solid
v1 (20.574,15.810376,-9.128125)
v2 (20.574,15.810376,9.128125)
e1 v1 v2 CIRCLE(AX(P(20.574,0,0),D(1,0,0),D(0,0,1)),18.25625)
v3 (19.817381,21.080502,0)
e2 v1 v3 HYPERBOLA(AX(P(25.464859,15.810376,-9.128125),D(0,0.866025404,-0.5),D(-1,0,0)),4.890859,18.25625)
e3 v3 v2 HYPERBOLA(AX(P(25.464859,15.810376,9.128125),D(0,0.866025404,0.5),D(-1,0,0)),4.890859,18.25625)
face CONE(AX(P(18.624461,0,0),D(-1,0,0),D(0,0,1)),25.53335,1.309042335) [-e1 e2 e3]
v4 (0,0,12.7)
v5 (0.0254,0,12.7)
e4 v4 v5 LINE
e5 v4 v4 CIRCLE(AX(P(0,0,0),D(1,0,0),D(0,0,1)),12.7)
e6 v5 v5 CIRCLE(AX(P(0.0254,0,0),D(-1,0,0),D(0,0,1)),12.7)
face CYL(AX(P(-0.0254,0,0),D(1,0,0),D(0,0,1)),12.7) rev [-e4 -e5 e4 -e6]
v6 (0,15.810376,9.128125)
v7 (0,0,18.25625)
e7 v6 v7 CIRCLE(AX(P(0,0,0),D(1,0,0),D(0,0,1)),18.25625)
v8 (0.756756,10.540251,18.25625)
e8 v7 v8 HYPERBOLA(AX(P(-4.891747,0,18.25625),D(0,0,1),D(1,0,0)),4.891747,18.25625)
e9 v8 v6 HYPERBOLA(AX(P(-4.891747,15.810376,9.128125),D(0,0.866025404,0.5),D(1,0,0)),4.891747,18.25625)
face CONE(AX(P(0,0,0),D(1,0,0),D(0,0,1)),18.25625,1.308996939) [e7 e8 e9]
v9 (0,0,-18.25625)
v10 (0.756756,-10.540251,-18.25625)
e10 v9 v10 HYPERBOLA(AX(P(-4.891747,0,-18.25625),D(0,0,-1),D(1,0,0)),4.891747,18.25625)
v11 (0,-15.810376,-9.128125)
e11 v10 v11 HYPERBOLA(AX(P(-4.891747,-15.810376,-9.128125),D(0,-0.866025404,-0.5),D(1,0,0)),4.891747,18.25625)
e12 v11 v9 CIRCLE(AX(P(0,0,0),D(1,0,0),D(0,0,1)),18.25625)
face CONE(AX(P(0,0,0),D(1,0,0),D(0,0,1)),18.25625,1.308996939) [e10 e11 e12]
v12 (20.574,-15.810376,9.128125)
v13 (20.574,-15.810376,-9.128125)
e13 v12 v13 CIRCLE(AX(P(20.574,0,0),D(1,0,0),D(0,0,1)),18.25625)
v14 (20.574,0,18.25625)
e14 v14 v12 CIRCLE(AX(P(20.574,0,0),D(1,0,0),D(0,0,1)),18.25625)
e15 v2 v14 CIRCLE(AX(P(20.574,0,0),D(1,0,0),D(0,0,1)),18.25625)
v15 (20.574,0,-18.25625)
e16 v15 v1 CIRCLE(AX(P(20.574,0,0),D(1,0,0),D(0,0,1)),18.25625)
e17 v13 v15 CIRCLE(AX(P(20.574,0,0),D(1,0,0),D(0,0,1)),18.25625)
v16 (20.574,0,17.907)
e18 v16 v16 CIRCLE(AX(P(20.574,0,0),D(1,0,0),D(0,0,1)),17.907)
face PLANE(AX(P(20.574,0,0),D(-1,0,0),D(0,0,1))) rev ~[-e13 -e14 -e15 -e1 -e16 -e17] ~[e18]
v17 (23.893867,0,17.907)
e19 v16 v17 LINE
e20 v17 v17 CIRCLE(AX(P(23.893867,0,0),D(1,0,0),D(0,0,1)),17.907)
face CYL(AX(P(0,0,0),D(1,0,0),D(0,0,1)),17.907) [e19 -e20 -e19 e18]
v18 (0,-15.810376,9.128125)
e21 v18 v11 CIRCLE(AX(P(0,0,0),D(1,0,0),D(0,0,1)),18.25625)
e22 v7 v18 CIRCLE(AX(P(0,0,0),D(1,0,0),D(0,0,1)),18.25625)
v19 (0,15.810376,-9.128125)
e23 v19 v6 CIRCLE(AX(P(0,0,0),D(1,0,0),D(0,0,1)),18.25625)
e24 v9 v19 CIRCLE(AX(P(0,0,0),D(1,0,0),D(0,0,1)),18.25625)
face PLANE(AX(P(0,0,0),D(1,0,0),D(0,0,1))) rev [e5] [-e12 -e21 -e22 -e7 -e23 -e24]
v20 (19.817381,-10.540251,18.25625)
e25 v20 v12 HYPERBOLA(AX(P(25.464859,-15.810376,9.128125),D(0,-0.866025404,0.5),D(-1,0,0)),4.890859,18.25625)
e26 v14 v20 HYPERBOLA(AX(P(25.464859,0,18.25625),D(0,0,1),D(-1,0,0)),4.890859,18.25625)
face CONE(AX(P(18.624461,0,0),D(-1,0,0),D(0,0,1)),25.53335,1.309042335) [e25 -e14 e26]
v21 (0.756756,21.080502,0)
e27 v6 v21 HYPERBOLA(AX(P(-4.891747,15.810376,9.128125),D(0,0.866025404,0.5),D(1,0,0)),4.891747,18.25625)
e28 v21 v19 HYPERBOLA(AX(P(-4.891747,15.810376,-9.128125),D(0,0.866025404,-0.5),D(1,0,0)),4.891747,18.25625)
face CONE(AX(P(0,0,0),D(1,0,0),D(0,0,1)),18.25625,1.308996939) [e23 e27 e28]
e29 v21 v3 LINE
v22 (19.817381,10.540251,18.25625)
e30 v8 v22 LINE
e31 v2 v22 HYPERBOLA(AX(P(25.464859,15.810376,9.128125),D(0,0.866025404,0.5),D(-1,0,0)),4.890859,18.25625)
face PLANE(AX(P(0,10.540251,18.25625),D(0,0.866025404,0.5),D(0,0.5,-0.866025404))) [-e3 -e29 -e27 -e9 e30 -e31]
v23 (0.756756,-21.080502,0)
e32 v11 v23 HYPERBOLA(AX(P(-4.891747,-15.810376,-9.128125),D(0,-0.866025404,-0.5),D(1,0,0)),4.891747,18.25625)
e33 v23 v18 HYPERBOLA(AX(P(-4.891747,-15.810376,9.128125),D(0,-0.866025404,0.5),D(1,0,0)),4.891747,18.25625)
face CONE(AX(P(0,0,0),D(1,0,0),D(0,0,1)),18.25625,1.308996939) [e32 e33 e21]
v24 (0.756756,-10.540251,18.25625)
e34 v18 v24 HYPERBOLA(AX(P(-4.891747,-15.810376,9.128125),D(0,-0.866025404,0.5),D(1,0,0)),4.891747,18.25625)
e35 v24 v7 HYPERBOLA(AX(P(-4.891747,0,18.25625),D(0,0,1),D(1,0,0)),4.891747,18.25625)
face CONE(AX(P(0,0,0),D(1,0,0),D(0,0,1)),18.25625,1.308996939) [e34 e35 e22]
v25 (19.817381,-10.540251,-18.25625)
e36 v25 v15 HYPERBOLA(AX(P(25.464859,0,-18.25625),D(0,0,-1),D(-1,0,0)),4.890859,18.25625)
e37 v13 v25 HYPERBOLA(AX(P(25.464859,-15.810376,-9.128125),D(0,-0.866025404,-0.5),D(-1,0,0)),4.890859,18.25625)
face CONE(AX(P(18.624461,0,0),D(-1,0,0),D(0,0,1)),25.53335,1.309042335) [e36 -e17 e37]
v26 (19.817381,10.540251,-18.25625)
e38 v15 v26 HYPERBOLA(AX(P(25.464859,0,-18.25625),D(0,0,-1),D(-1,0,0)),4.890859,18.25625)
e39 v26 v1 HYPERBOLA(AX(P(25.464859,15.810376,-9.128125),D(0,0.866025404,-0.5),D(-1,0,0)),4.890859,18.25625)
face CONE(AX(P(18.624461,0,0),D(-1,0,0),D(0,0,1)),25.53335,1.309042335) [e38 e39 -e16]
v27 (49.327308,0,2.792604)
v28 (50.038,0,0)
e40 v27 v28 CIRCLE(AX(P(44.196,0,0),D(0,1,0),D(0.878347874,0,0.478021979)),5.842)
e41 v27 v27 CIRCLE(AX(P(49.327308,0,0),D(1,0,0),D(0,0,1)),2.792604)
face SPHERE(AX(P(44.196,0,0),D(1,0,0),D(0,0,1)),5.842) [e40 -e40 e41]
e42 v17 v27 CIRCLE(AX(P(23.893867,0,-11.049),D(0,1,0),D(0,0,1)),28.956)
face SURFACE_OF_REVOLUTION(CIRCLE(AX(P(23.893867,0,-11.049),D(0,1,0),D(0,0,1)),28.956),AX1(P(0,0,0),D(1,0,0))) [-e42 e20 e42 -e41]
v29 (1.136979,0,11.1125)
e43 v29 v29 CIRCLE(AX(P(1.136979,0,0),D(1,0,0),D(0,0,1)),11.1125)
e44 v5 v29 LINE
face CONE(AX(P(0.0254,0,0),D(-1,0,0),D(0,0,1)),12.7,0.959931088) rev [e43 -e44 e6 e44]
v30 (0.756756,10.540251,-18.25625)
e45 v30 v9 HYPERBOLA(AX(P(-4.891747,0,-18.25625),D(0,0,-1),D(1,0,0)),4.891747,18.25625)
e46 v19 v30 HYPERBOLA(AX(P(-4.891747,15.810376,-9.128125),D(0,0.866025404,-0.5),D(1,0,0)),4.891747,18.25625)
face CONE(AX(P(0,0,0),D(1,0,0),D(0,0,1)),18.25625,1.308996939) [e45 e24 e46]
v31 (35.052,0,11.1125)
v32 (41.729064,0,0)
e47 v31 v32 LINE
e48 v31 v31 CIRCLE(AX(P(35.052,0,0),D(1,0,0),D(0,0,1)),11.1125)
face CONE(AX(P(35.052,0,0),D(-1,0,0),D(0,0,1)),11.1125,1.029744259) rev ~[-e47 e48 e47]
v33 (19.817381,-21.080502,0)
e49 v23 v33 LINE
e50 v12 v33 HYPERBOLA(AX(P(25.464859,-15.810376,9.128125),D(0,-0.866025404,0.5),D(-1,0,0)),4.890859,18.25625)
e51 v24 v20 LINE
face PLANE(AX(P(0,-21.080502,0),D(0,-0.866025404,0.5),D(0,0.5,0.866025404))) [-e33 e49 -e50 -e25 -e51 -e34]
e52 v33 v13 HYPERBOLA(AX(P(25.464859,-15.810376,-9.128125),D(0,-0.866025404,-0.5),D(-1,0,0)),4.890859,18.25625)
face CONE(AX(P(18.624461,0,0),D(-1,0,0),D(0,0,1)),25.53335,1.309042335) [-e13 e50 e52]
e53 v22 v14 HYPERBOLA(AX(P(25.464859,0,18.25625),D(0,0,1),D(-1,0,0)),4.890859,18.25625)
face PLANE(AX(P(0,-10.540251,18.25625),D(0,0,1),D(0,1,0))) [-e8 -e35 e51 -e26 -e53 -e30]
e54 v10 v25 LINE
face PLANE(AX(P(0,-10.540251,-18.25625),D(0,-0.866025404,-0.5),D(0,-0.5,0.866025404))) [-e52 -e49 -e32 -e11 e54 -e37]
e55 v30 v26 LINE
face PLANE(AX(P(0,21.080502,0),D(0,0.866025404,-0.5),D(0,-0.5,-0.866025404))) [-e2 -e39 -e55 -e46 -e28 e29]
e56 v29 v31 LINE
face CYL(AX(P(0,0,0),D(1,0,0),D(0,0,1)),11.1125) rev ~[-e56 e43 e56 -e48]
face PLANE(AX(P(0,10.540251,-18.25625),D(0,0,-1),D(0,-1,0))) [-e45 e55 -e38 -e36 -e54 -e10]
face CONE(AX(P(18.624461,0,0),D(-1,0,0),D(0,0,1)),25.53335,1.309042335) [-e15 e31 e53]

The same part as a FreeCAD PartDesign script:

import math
import FreeCAD as App
import Part
import Sketcher

V = App.Vector
Q = App.Units.Quantity

doc = App.newDocument("Part")
body = doc.addObject("PartDesign::Body", "Body")

# Sketch on YZ plane
sketch1 = doc.addObject("Sketcher::SketchObject", "Sketch")
body.addObject(sketch1)
sketch1.AttachmentSupport = (doc.YZ_Plane, [""])
sketch1.MapMode = "FlatFace"
sketch1.addGeometry([
    Part.LineSegment(V(-10.540251, -18.25625, 0), V(10.540251, -18.25625, 0)),  # 0
    Part.LineSegment(V(10.540251, -18.25625, 0), V(21.080502, 0, 0)),  # 1
    Part.LineSegment(V(21.080502, 0, 0), V(10.540251, 18.25625, 0)),  # 2
    Part.LineSegment(V(10.540251, 18.25625, 0), V(-10.540251, 18.25625, 0)),  # 3
    Part.LineSegment(V(-10.540251, 18.25625, 0), V(-21.080502, 0, 0)),  # 4
    Part.LineSegment(V(-21.080502, 0, 0), V(-10.540251, -18.25625, 0)),  # 5
], False)
sketch1.addConstraint([
    Sketcher.Constraint("Coincident", 0, 2, 1, 1),
    Sketcher.Constraint("Coincident", 1, 2, 2, 1),
    Sketcher.Constraint("Coincident", 2, 2, 3, 1),
    Sketcher.Constraint("Coincident", 3, 2, 4, 1),
    Sketcher.Constraint("Coincident", 4, 2, 5, 1),
    Sketcher.Constraint("Coincident", 5, 2, 0, 1),
    Sketcher.Constraint("Horizontal", 0),
    Sketcher.Constraint("Horizontal", 3),
    Sketcher.Constraint("Symmetric", 0, 2, 3, 2, -1, 1),
    Sketcher.Constraint("Symmetric", 1, 2, 4, 2, -1, 1),
    Sketcher.Constraint("PointOnObject", 1, 2, -1),
    Sketcher.Constraint("Parallel", 2, 5),
    Sketcher.Constraint("Vertical", 0, 2, 2, 2),
    Sketcher.Constraint("Angle", 1, Q("60 deg")),
    Sketcher.Constraint("DistanceY", 0, 2, -1, 1, Q("0.71875 in")),
    Sketcher.Constraint("DistanceX", 0, 1, 0, 2, 21.080502),
])
pad1 = doc.addObject("PartDesign::Pad", "Pad")
body.addObject(pad1)
pad1.Profile = sketch1
pad1.Length = Q("0.81 in")

# Sketch on XY plane
sketch2 = doc.addObject("Sketcher::SketchObject", "Sketch001")
body.addObject(sketch2)
sketch2.AttachmentSupport = (doc.XY_Plane, [""])
sketch2.MapMode = "FlatFace"
sketch2.addGeometry([
    Part.LineSegment(V(0, 0, 0), V(50.038, 0, 0)),  # 0
    Part.ArcOfCircle(Part.Circle(V(44.196, 0, 0), V(0, 0, 1), 5.842), math.radians(0), math.radians(28.556294)),  # 1
    Part.ArcOfCircle(Part.Circle(V(23.893867, -11.049, 0), V(0, 0, 1), 28.956), math.radians(28.556294), math.radians(90)),  # 2
    Part.LineSegment(V(23.893867, 17.907, 0), V(0, 17.907, 0)),  # 3
    Part.LineSegment(V(0, 17.907, 0), V(0, 0, 0)),  # 4
], False)
sketch2.addConstraint([
    Sketcher.Constraint("Coincident", 0, 2, 1, 1),
    Sketcher.Constraint("Tangent", 1, 2, 2, 1),
    Sketcher.Constraint("Tangent", 2, 2, 3, 1),
    Sketcher.Constraint("Coincident", 3, 2, 4, 1),
    Sketcher.Constraint("Coincident", 4, 2, 0, 1),
    Sketcher.Constraint("Horizontal", 0),
    Sketcher.Constraint("Horizontal", 3),
    Sketcher.Constraint("Vertical", 4),
    Sketcher.Constraint("Coincident", 4, 2, -1, 1),
    Sketcher.Constraint("PointOnObject", 1, 3, -1),
    Sketcher.Constraint("Radius", 1, Q("0.23 in")),
    Sketcher.Constraint("Radius", 2, Q("1.14 in")),
    Sketcher.Constraint("DistanceX", 0, 1, 0, 2, Q("1.97 in")),
    Sketcher.Constraint("DistanceY", 4, 2, 4, 1, Q("0.705 in")),
])
revolution = doc.addObject("PartDesign::Revolution", "Revolution")
body.addObject(revolution)
revolution.Profile = sketch2
revolution.ReferenceAxis = (sketch2, ["H_Axis"])
revolution.Angle = 360

# Sketch on XY plane
sketch3 = doc.addObject("Sketcher::SketchObject", "Sketch002")
body.addObject(sketch3)
sketch3.AttachmentSupport = (doc.XY_Plane, [""])
sketch3.MapMode = "FlatFace"
sketch3.addGeometry([
    Part.LineSegment(V(0, 18.25625, 0), V(1.949893, 25.53335, 0)),  # 0
    Part.LineSegment(V(1.949893, 25.53335, 0), V(18.624461, 25.53335, 0)),  # 1
    Part.LineSegment(V(18.624461, 25.53335, 0), V(20.574, 18.25625, 0)),  # 2
    Part.LineSegment(V(20.574, 18.25625, 0), V(33.274, 18.25625, 0)),  # 3
    Part.LineSegment(V(33.274, 18.25625, 0), V(33.274, 43.65625, 0)),  # 4
    Part.LineSegment(V(33.274, 43.65625, 0), V(-12.7, 43.65625, 0)),  # 5
    Part.LineSegment(V(-12.7, 43.65625, 0), V(-12.7, 18.25625, 0)),  # 6
    Part.LineSegment(V(-12.7, 18.25625, 0), V(0, 18.25625, 0)),  # 7
], False)
sketch3.addConstraint([
    Sketcher.Constraint("Coincident", 0, 2, 1, 1),
    Sketcher.Constraint("Coincident", 1, 2, 2, 1),
    Sketcher.Constraint("Coincident", 2, 2, 3, 1),
    Sketcher.Constraint("Coincident", 3, 2, 4, 1),
    Sketcher.Constraint("Coincident", 4, 2, 5, 1),
    Sketcher.Constraint("Coincident", 5, 2, 6, 1),
    Sketcher.Constraint("Coincident", 6, 2, 7, 1),
    Sketcher.Constraint("Coincident", 7, 2, 0, 1),
    Sketcher.Constraint("Horizontal", 1),
    Sketcher.Constraint("Horizontal", 3),
    Sketcher.Constraint("Vertical", 4),
    Sketcher.Constraint("Horizontal", 5),
    Sketcher.Constraint("Vertical", 6),
    Sketcher.Constraint("Horizontal", 7),
    Sketcher.Constraint("PointOnObject", 7, 2, -2),
    Sketcher.Constraint("Horizontal", 3, 2, 6, 2),
    Sketcher.Constraint("Equal", 3, 7),
    Sketcher.Constraint("DistanceY", 4, 1, 4, 2, Q("1 in")),
    Sketcher.Constraint("DistanceX", 3, 1, 3, 2, Q("0.5 in")),
    Sketcher.Constraint("Angle", 0, Q("75 deg")),
    Sketcher.Constraint("DistanceX", 5, 2, 5, 1, Q("1.81 in")),
    Sketcher.Constraint("DistanceY", -1, 1, 2, 2, Q("0.71875 in")),
    Sketcher.Constraint("DistanceY", 2, 2, 1, 2, Q("0.2865 in")),
    Sketcher.Constraint("DistanceX", 1, 1, 1, 2, 16.674568),
])
groove = doc.addObject("PartDesign::Groove", "Groove")
body.addObject(groove)
groove.Profile = sketch3
groove.ReferenceAxis = (sketch3, ["H_Axis"])
groove.Angle = 360

# Sketch on XY plane
sketch4 = doc.addObject("Sketcher::SketchObject", "Sketch003")
body.addObject(sketch4)
sketch4.AttachmentSupport = (doc.XY_Plane, [""])
sketch4.MapMode = "FlatFace"
sketch4.addGeometry([
    Part.LineSegment(V(35.052, 11.1125, 0), V(0, 11.1125, 0)),
    Part.LineSegment(V(0, 11.1125, 0), V(0, 0, 0)),
    Part.LineSegment(V(0, 0, 0), V(41.729064, 0, 0)),
    Part.LineSegment(V(41.729064, 0, 0), V(35.052, 11.1125, 0)),
], False)
sketch4.addConstraint([
    Sketcher.Constraint("Coincident", 0, 2, 1, 1),
    Sketcher.Constraint("Coincident", 1, 2, 2, 1),
    Sketcher.Constraint("Coincident", 2, 2, 3, 1),
    Sketcher.Constraint("Coincident", 3, 2, 0, 1),
    Sketcher.Constraint("Horizontal", 0),
    Sketcher.Constraint("Vertical", 1),
    Sketcher.Constraint("Horizontal", 2),
    Sketcher.Constraint("Coincident", 1, 2, -1, 1),
    Sketcher.Constraint("Angle", 3, Q("121 deg")),
    Sketcher.Constraint("DistanceX", 0, 2, 0, 1, Q("1.38 in")),
    Sketcher.Constraint("DistanceY", 1, 2, 1, 1, Q("0.4375 in")),
])
groove2 = doc.addObject("PartDesign::Groove", "Groove001")
body.addObject(groove2)
groove2.Profile = sketch4
groove2.ReferenceAxis = (sketch4, ["H_Axis"])
groove2.Angle = 360

# Sketch on XY plane
sketch5 = doc.addObject("Sketcher::SketchObject", "Sketch004")
body.addObject(sketch5)
sketch5.AttachmentSupport = (doc.XY_Plane, [""])
sketch5.MapMode = "FlatFace"
sketch5.addGeometry([
    Part.LineSegment(V(0.0254, 12.7, 0), V(-0.0254, 12.7, 0)),
    Part.LineSegment(V(-0.0254, 12.7, 0), V(-0.0254, 10.95375, 0)),
    Part.LineSegment(V(-0.0254, 10.95375, 0), V(1.248137, 10.95375, 0)),
    Part.LineSegment(V(1.248137, 10.95375, 0), V(0.0254, 12.7, 0)),
], False)
sketch5.addConstraint([
    Sketcher.Constraint("Coincident", 0, 2, 1, 1),
    Sketcher.Constraint("Coincident", 1, 2, 2, 1),
    Sketcher.Constraint("Coincident", 2, 2, 3, 1),
    Sketcher.Constraint("Coincident", 3, 2, 0, 1),
    Sketcher.Constraint("Horizontal", 0),
    Sketcher.Constraint("Vertical", 1),
    Sketcher.Constraint("Horizontal", 2),
    Sketcher.Constraint("Angle", 3, Q("125 deg")),
    Sketcher.Constraint("DistanceY", -1, 1, 0, 2, Q("0.5 in")),
    Sketcher.Constraint("DistanceX", 0, 2, 0, 1, Q("0.002 in")),
    Sketcher.Constraint("DistanceX", 0, 2, -1, 1, Q("0.001 in")),
    Sketcher.Constraint("DistanceY", 1, 2, 1, 1, 1.74625),
])
groove3 = doc.addObject("PartDesign::Groove", "Groove002")
body.addObject(groove3)
groove3.Profile = sketch5
groove3.ReferenceAxis = (sketch5, ["H_Axis"])
groove3.Angle = 360

doc.recompute()
